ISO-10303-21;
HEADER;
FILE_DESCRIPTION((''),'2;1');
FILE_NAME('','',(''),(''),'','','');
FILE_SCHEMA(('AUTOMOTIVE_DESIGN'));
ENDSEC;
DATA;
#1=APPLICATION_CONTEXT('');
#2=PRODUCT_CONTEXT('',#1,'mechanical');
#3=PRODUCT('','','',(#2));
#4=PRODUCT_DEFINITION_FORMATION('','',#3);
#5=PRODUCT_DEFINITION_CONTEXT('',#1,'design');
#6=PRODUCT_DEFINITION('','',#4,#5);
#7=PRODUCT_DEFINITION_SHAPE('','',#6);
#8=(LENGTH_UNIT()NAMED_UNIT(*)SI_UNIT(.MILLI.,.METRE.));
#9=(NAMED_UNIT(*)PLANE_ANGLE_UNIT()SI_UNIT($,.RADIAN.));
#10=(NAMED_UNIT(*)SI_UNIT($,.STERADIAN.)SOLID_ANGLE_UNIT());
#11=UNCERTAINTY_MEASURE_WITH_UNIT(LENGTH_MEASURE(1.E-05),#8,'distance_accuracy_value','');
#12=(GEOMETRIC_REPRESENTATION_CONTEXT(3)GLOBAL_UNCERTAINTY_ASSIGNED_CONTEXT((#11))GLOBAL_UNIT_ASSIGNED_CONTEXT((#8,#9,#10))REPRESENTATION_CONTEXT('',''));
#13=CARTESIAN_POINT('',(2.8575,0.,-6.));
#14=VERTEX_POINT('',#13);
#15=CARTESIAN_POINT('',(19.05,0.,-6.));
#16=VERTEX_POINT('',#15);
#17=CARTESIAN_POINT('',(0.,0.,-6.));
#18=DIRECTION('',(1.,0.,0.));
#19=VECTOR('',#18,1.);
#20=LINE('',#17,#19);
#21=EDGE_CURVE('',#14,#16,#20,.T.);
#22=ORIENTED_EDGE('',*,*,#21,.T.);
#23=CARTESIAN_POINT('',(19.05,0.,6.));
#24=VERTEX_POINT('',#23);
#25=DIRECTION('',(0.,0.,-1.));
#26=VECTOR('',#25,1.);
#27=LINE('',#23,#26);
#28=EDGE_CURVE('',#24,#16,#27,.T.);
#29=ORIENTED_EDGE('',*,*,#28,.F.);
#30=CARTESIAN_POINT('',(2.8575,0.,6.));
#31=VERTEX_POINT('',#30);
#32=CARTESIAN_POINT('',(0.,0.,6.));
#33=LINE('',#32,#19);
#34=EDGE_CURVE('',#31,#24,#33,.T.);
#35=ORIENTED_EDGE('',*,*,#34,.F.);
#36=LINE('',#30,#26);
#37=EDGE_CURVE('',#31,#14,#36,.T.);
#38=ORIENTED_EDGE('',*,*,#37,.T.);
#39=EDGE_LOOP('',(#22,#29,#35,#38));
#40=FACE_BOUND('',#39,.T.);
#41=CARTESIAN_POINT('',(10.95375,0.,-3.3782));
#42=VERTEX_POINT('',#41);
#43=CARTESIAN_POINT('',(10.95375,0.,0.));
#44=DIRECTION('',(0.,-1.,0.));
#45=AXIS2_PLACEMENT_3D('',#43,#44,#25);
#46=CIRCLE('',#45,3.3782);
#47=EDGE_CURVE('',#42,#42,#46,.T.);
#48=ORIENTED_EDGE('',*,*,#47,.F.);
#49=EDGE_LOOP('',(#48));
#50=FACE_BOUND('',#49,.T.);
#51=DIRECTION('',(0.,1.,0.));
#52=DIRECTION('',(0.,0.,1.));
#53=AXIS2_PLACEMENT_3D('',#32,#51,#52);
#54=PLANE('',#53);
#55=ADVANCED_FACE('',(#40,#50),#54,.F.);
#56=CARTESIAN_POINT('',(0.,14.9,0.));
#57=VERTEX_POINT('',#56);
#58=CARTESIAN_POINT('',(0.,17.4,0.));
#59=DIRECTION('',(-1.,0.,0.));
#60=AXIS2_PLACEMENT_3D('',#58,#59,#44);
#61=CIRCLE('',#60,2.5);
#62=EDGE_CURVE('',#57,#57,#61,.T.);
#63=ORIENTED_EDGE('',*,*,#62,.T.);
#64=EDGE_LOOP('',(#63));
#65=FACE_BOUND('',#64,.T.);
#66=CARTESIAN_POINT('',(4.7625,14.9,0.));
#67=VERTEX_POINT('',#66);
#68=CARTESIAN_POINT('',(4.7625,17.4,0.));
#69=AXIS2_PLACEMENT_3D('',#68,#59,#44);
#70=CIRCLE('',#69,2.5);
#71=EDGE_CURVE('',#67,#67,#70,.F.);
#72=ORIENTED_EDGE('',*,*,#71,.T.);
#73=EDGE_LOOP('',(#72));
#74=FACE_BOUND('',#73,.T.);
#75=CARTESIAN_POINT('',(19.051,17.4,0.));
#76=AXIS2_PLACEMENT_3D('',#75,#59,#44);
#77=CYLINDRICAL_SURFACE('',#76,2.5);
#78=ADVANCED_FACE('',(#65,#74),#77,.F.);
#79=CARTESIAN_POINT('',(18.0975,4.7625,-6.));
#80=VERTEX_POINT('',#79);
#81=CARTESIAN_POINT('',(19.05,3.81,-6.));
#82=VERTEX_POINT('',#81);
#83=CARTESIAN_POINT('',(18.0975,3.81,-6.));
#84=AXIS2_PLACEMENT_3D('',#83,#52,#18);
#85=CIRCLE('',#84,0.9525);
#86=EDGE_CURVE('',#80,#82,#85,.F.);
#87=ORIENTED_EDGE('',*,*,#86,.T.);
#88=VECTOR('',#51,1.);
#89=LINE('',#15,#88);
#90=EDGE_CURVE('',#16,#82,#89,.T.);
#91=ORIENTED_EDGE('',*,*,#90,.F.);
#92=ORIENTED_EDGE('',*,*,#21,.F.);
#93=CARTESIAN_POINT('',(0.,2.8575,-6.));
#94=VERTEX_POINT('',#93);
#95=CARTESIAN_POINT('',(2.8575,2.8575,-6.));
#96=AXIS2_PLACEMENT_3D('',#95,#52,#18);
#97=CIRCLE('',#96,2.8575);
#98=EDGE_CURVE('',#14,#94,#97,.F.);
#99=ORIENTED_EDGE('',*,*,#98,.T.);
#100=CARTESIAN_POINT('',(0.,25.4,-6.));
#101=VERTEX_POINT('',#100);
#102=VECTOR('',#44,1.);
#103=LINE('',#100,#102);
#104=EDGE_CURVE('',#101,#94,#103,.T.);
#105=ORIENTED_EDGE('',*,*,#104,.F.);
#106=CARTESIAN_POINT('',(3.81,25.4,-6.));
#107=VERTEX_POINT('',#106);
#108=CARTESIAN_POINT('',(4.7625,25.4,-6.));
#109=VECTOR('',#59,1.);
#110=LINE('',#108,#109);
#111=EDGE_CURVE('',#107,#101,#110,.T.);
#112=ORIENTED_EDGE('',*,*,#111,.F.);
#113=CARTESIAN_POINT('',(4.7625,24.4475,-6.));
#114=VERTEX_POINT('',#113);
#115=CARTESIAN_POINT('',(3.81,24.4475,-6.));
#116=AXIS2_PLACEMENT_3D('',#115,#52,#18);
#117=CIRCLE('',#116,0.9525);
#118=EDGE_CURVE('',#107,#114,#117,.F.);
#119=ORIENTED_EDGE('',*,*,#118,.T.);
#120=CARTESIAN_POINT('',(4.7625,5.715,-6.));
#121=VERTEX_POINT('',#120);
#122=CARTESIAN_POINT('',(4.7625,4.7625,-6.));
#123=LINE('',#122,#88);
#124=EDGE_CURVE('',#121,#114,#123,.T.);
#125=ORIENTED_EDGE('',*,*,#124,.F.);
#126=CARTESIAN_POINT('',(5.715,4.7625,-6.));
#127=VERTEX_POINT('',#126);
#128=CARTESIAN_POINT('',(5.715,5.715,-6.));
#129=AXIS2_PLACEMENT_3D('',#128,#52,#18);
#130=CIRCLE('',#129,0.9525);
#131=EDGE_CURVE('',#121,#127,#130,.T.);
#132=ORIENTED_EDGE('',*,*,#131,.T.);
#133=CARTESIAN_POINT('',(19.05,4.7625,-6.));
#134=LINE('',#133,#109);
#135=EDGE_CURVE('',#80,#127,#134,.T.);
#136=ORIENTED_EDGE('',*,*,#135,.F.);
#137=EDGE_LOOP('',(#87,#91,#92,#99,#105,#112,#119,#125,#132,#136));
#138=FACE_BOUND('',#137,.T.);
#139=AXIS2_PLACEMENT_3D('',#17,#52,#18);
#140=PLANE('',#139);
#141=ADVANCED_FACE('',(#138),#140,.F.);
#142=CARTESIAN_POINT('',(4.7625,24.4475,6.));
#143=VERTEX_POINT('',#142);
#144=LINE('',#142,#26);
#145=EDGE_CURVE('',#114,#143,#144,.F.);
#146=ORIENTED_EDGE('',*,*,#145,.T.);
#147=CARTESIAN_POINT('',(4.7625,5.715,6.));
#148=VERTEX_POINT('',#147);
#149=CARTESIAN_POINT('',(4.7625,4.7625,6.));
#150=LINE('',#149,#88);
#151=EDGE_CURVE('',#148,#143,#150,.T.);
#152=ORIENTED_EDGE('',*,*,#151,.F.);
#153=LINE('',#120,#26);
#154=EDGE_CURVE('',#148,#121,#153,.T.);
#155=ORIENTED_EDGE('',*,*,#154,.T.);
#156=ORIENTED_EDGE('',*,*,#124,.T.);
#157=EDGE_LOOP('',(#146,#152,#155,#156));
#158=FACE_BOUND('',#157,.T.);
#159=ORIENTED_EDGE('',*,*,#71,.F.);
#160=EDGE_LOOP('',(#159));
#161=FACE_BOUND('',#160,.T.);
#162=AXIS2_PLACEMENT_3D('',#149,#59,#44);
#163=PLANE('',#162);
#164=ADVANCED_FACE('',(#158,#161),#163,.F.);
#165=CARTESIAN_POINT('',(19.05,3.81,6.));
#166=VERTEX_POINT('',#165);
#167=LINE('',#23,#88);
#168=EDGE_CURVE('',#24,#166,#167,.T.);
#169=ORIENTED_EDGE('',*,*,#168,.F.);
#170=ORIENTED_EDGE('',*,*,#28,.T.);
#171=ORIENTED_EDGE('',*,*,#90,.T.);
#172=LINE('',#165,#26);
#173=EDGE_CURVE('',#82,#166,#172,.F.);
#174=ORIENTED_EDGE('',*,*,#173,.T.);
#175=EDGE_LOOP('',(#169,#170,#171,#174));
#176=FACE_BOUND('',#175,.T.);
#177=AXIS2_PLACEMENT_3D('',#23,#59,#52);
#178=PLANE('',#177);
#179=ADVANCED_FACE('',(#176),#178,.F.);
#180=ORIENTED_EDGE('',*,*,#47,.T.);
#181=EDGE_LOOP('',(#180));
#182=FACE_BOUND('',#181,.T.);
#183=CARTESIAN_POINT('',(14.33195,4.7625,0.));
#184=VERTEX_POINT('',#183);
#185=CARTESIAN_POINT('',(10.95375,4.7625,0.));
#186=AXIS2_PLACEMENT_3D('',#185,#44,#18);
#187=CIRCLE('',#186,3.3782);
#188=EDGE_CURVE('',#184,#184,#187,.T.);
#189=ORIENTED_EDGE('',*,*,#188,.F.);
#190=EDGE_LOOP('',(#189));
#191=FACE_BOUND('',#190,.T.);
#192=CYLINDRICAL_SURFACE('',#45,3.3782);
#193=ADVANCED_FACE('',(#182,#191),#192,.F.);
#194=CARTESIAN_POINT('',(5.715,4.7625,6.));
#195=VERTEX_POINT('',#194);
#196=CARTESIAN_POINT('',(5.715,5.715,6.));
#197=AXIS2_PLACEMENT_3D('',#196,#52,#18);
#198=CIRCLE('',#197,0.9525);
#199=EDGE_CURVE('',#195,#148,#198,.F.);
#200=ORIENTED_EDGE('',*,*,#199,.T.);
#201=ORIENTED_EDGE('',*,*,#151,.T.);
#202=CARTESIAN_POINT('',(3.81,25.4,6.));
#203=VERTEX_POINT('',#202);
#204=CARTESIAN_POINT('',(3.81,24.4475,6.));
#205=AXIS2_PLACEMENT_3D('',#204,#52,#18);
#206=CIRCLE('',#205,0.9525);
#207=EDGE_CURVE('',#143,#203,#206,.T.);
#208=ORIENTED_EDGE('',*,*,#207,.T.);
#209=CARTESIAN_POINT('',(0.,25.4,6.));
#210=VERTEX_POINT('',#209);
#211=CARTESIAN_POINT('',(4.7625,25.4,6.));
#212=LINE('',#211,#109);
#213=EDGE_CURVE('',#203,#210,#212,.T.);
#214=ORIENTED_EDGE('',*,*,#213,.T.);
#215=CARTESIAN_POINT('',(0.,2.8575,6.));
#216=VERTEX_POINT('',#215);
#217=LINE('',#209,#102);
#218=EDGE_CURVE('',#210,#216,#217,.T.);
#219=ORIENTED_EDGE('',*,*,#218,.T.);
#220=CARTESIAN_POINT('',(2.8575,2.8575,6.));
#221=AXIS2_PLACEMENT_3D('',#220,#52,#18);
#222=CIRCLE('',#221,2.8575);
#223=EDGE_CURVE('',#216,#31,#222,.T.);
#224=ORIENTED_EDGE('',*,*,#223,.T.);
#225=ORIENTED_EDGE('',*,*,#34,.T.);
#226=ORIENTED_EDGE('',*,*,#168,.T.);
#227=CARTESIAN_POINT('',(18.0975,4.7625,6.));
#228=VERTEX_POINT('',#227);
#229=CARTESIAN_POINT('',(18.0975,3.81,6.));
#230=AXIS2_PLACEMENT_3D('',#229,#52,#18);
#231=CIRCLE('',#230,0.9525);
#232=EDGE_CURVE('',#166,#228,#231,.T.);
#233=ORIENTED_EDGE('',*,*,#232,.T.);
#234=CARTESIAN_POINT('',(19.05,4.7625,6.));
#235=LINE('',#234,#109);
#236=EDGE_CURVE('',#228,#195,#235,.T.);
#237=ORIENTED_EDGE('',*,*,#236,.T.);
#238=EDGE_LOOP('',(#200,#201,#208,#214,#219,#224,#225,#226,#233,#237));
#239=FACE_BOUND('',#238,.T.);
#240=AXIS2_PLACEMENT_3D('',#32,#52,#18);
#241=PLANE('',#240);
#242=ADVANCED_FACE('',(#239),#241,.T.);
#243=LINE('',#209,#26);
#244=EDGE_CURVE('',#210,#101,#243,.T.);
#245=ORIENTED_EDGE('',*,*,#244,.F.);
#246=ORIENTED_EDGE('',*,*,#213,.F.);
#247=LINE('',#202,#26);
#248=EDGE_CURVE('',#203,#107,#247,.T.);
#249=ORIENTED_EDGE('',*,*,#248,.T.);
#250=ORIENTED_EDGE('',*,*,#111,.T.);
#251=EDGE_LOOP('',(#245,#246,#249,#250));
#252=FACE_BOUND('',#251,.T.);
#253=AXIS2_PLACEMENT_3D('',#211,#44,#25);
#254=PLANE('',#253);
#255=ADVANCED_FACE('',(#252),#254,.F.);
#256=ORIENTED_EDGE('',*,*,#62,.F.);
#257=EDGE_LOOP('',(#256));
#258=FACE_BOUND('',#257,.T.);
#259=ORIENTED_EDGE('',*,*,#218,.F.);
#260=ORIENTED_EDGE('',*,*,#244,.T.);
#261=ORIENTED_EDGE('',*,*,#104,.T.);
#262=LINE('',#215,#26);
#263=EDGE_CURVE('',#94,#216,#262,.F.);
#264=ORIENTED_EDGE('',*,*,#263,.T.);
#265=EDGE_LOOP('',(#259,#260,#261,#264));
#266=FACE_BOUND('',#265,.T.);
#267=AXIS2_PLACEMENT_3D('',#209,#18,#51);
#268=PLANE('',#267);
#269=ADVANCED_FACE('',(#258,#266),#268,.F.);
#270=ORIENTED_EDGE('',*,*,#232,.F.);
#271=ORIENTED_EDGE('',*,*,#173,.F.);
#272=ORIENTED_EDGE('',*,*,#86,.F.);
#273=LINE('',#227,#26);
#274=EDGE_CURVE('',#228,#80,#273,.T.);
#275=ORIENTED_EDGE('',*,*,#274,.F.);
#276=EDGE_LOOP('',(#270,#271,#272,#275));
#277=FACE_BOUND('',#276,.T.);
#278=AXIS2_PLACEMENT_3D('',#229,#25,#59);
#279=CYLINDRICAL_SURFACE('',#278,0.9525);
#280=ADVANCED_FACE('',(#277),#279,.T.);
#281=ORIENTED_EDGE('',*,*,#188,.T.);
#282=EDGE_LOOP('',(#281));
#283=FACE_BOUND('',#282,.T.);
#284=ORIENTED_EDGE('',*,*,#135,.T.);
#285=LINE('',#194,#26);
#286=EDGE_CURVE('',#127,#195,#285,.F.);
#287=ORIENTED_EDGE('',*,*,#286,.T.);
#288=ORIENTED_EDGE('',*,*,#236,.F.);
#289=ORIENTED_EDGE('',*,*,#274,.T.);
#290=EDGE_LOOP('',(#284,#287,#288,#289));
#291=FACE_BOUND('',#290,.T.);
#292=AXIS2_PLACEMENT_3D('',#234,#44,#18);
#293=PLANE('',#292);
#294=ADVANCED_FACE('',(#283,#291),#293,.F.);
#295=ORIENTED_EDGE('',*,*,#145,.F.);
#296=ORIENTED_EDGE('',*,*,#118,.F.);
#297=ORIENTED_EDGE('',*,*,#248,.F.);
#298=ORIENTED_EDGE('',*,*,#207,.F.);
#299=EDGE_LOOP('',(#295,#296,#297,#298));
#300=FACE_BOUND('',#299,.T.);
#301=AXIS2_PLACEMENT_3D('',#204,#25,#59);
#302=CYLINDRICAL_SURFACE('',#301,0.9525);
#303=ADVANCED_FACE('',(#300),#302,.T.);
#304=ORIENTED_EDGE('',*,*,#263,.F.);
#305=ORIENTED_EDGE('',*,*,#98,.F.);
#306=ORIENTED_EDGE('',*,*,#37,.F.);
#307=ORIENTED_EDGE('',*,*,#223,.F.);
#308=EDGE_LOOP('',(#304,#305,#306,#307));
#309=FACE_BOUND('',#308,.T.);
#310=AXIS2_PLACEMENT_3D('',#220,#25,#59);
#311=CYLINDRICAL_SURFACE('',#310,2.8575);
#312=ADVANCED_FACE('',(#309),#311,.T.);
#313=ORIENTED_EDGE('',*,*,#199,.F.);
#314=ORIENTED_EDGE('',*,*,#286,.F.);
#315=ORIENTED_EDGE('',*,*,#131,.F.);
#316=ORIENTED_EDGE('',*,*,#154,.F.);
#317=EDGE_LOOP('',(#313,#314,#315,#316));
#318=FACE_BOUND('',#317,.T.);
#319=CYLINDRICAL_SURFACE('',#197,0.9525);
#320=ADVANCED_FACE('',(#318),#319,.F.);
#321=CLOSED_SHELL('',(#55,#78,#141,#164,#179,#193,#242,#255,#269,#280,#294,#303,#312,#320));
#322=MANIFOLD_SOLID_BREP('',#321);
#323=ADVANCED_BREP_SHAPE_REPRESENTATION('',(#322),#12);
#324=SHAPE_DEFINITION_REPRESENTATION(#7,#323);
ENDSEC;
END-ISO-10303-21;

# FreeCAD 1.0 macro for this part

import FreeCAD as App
import Part
import Sketcher
from FreeCAD import Vector
Q = App.Units.Quantity


def edges_at(feature, points):
    """Names of the edges that pass closest to the given points."""
    edges = feature.Shape.Edges
    near = lambda p: min(range(len(edges)), key=lambda i: edges[i].distToShape(Part.Vertex(*p))[0])
    return sorted({f"Edge{near(p) + 1}" for p in points})

doc = App.newDocument("Part")
body = doc.addObject("PartDesign::Body", "Body")

# Sketch on XY plane
sketch1 = body.newObject("Sketcher::SketchObject", "Sketch")
sketch1.AttachmentSupport = (doc.getObject("XY_Plane"), [""])
sketch1.MapMode = "FlatFace"
sketch1.addGeometry([
    Part.LineSegment(Vector(4.8, 25.4, 0), Vector(0, 25.4, 0)),  # 0
    Part.LineSegment(Vector(0, 25.4, 0), Vector(0, 0, 0)),  # 1
    Part.LineSegment(Vector(0, 0, 0), Vector(19.1, 0, 0)),  # 2
    Part.LineSegment(Vector(19.1, 0, 0), Vector(19.1, 4.8, 0)),  # 3
    Part.LineSegment(Vector(19.1, 4.8, 0), Vector(4.8, 4.8, 0)),  # 4
    Part.LineSegment(Vector(4.8, 4.8, 0), Vector(4.8, 25.4, 0)),  # 5
], False)
sketch1.addConstraint([
    Sketcher.Constraint("Coincident", 0, 2, 1, 1),
    Sketcher.Constraint("Coincident", 1, 2, 2, 1),
    Sketcher.Constraint("Coincident", 2, 2, 3, 1),
    Sketcher.Constraint("Coincident", 3, 2, 4, 1),
    Sketcher.Constraint("Coincident", 4, 2, 5, 1),
    Sketcher.Constraint("Coincident", 5, 2, 0, 1),
    Sketcher.Constraint("Horizontal", 0),
    Sketcher.Constraint("Vertical", 1),
    Sketcher.Constraint("Horizontal", 2),
    Sketcher.Constraint("Vertical", 3),
    Sketcher.Constraint("Horizontal", 4),
    Sketcher.Constraint("Vertical", 5),
    Sketcher.Constraint("Coincident", 1, 2, -1, 1),
    Sketcher.Constraint("Equal", 0, 3),
    Sketcher.Constraint("DistanceY", 1, 2, 1, 1, Q("1 in")),
    Sketcher.Constraint("DistanceX", 2, 1, 2, 2, Q("0.75 in")),
    Sketcher.Constraint("DistanceX", 0, 2, 0, 1, Q("0.1875 in")),
])
pad1 = body.newObject("PartDesign::Pad", "Pad")
pad1.Profile = sketch1
pad1.Length = 12
pad1.Midplane = True
doc.recompute()

fillet = body.newObject("PartDesign::Fillet", "Fillet")
fillet.Base = (pad1, edges_at(pad1, [(4.763, 4.763, 0), (19.05, 4.763, 0), (4.763, 25.4, 0)]))
fillet.Radius = Q("0.0375 in")
doc.recompute()

fillet2 = body.newObject("PartDesign::Fillet", "Fillet001")
fillet2.Base = (fillet, edges_at(fillet, [(0, 0, 0)]))
fillet2.Radius = Q("0.1125 in")

# Sketch on XZ plane
sketch2 = body.newObject("Sketcher::SketchObject", "Sketch001")
sketch2.AttachmentSupport = (doc.getObject("XZ_Plane"), [""])
sketch2.MapMode = "FlatFace"
sketch2.addGeometry(Part.Circle(Vector(11, 0, 0), Vector(0, 0, 1), 3.4), False)
sketch2.addConstraint([
    Sketcher.Constraint("PointOnObject", 0, 3, -1),
    Sketcher.Constraint("Diameter", 0, Q("0.266 in")),
    Sketcher.Constraint("DistanceX", -1, 1, 0, 3, 10.95375),
])
doc.recompute()
hole = body.newObject("PartDesign::Hole", "Hole")
hole.Profile = sketch2
hole.ThreadType = "None"
hole.Diameter = Q("0.266 in")
hole.DepthType = "ThroughAll"

# Sketch on YZ plane
sketch3 = body.newObject("Sketcher::SketchObject", "Sketch002")
sketch3.AttachmentSupport = (doc.getObject("YZ_Plane"), [""])
sketch3.MapMode = "FlatFace"
sketch3.addGeometry(Part.Circle(Vector(17.4, 0, 0), Vector(0, 0, 1), 2.5), False)
sketch3.addConstraint([
    Sketcher.Constraint("PointOnObject", 0, 3, -1),
    Sketcher.Constraint("Diameter", 0, 5.0),
    Sketcher.Constraint("DistanceX", -1, 1, 0, 3, 17.4),
])
pocket1 = body.newObject("PartDesign::Pocket", "Pocket")
pocket1.Profile = sketch3
pocket1.Type = "UpToFirst"
pocket1.Reversed = True

doc.recompute()
